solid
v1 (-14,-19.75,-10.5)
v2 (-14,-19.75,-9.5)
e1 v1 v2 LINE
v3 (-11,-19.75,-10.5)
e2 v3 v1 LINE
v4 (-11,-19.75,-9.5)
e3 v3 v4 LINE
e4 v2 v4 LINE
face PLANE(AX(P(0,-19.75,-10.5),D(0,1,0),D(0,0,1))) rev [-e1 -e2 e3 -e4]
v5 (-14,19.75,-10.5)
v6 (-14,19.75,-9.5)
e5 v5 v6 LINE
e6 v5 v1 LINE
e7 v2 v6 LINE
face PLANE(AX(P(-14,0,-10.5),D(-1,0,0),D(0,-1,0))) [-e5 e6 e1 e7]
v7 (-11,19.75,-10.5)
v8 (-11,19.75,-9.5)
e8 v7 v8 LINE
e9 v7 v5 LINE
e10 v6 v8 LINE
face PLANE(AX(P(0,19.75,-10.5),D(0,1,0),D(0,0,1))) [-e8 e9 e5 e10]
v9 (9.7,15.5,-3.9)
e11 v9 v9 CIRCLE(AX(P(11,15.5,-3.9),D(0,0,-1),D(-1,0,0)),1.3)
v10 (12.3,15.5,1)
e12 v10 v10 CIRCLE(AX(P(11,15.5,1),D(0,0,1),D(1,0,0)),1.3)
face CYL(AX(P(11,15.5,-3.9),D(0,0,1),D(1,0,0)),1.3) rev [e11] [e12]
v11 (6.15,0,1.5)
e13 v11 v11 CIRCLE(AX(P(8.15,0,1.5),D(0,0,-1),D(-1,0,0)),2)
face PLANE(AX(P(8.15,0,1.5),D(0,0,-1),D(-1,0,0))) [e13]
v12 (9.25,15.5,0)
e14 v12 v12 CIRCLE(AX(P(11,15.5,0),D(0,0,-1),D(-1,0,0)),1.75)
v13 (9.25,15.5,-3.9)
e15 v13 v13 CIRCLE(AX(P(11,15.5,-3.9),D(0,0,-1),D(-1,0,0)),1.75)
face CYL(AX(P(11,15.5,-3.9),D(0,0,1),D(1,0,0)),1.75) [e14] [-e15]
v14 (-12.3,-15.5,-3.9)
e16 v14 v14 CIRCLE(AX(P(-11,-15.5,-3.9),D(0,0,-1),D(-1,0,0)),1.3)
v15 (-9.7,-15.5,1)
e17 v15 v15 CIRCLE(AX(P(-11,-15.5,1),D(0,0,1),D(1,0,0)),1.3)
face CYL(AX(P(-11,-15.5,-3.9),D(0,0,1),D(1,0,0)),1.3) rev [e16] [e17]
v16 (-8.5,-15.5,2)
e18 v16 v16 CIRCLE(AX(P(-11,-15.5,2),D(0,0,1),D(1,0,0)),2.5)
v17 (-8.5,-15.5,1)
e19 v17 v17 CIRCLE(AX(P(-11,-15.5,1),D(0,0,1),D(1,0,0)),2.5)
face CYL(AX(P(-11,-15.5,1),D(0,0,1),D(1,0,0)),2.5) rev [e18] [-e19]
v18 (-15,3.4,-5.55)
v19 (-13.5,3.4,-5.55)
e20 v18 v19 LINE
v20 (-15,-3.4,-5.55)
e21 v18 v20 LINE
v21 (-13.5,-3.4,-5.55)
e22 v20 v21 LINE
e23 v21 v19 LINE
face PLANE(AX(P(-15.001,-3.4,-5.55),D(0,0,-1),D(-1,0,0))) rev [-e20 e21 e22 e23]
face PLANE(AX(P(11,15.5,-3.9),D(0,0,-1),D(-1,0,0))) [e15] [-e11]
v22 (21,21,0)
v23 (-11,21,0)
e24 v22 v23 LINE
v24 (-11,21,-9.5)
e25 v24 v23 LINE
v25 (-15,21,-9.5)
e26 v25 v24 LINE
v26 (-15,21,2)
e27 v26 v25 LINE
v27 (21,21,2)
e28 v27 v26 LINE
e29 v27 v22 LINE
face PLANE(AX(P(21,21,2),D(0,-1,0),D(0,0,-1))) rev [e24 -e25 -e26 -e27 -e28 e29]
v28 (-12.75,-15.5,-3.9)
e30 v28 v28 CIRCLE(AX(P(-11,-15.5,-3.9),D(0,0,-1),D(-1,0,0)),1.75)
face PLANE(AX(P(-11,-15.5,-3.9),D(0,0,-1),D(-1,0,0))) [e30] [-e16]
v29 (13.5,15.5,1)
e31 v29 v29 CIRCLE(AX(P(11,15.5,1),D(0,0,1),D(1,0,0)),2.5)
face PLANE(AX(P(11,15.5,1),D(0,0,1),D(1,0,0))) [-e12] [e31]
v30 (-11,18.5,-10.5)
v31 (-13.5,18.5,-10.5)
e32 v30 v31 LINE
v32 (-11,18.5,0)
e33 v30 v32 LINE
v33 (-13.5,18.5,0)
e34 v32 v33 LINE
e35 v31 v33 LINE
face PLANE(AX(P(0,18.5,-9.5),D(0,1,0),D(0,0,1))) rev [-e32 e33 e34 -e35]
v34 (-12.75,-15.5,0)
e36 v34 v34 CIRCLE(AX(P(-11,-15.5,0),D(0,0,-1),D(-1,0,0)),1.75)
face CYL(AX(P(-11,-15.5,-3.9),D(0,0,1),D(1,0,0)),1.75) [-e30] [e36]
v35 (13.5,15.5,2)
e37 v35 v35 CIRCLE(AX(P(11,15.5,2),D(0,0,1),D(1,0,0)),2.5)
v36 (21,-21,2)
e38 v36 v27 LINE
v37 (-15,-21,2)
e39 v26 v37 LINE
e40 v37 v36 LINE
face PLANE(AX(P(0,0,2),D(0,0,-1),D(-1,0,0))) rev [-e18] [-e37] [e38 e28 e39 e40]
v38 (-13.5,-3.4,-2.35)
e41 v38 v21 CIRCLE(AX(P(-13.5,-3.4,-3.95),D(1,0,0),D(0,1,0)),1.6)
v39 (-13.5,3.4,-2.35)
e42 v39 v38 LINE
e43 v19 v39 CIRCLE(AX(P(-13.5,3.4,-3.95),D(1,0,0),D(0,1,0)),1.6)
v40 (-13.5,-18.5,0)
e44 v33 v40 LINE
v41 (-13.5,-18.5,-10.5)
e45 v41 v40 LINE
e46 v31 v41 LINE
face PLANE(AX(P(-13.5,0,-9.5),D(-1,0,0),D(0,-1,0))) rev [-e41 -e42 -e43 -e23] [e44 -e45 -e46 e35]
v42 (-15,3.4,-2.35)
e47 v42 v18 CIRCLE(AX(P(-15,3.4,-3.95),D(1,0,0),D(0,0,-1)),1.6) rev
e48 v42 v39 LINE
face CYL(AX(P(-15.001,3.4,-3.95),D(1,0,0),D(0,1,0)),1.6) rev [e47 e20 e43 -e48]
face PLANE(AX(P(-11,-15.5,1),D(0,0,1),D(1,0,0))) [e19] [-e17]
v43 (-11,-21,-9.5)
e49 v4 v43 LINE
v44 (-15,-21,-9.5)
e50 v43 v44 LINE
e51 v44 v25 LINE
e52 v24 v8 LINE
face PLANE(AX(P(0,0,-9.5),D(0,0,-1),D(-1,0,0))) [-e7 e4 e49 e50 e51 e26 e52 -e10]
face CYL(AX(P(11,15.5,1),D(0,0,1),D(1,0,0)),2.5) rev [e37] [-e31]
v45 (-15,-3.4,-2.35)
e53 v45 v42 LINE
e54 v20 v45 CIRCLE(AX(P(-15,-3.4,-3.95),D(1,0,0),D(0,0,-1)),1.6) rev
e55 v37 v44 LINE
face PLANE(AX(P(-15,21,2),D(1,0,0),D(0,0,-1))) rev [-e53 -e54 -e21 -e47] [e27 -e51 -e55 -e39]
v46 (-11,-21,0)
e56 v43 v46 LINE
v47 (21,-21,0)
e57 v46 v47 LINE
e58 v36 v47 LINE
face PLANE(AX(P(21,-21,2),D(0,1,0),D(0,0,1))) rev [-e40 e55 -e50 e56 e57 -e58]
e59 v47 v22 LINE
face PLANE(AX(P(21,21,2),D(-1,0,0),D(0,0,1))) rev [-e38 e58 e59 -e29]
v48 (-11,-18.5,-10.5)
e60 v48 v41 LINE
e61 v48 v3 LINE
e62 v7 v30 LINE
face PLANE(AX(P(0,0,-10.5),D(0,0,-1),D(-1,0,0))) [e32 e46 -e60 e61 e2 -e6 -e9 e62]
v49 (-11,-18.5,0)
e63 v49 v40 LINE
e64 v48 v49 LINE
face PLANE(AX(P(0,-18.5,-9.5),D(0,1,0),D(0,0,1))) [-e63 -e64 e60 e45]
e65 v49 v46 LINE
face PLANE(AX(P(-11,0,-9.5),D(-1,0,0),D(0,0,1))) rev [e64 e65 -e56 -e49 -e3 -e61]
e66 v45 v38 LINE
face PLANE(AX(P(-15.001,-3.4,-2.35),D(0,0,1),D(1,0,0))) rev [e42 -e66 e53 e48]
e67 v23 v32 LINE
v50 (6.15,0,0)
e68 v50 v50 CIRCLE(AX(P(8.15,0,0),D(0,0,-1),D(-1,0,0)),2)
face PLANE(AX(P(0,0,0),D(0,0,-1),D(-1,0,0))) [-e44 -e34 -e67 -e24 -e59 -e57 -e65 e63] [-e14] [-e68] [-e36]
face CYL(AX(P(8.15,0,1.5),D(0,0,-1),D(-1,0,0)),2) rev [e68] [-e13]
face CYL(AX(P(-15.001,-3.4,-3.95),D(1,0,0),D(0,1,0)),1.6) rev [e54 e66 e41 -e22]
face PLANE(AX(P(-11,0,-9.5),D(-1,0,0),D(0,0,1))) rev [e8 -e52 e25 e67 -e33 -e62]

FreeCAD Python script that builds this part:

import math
import FreeCAD as App
import Part
import Sketcher

V = App.Vector
Q = App.Units.Quantity


def add_polygon(sketch, points):
    """Adds a closed chain of lines whose ends are joined by coincident constraints."""
    first, n = sketch.GeometryCount, len(points)
    for a, b in zip(points, points[1:] + points[:1]):
        sketch.addGeometry(Part.LineSegment(App.Vector(*a, 0), App.Vector(*b, 0)), False)
    for i in range(n):
        sketch.addConstraint(Sketcher.Constraint("Coincident", first + i, 2, first + (i + 1) % n, 1))

doc = App.newDocument("Part")
params = doc.addObject("Spreadsheet::Sheet", "Params")
for row, (alias, value) in enumerate([
    ("sketch1_width", "36 mm"),
    ("sketch1_height", "42 mm"),
    ("pad1_length", "2 mm"),
    ("sketch2_width", "4 mm"),
    ("sketch2_height", "42 mm"),
    ("sketch2_height2", "37 mm"),
    ("pad2_length", "9.5 mm"),
    ("sketch3_width", "3 mm"),
    ("sketch3_height", "37 mm"),
    ("sketch3_width2", "2.5 mm"),
    ("sketch3_height2", "39.5 mm"),
    ("pad3_length", "10.5 mm"),
    ("sketch4_radius", "1.6 mm"),
    ("sketch4_width", "6.8 mm"),
    ("sketch5_diameter", "3.5 mm"),
    ("sketch5_diameter2", "2.6 mm"),
    ("pad4_length", "3.9 mm"),
    ("sketch6_diameter", "2.6 mm"),
    ("sketch7_diameter", "2.6 mm"),
    ("sketch8_diameter", "5 mm"),
    ("pocket4_length", "1 mm"),
    ("sketch9_diameter", "4 mm"),
    ("pocket5_length", "1.5 mm"),
], start=1):
    params.set(f"A{row}", alias)
    params.set(f"B{row}", "=" + value)
    params.setAlias(f"B{row}", alias)

body = doc.addObject("PartDesign::Body", "Body")

# Sketch on XY plane
sketch1 = body.newObject("Sketcher::SketchObject", "Sketch")
sketch1.AttachmentSupport = (doc.getObject("XY_Plane"), [""])
sketch1.MapMode = "FlatFace"
add_polygon(sketch1, [(-15, 21), (-15, -21), (21, -21), (21, 21)])  # lines 0-3
sketch1.addConstraint(Sketcher.Constraint("Vertical", 0))
sketch1.addConstraint(Sketcher.Constraint("Horizontal", 1))
sketch1.addConstraint(Sketcher.Constraint("Vertical", 2))
sketch1.addConstraint(Sketcher.Constraint("Horizontal", 3))
sketch1.addConstraint(Sketcher.Constraint("DistanceX", 1, 1, 1, 2, Q("36 mm")))
sketch1.addConstraint(Sketcher.Constraint("DistanceY", 0, 2, 0, 1, Q("42 mm")))
sketch1.addConstraint(Sketcher.Constraint("DistanceX", 0, 2, -1, 1, Q("15 mm")))
sketch1.addConstraint(Sketcher.Constraint("DistanceY", 0, 2, -1, 1, Q("21 mm")))
sketch1.setExpression("Constraints[8]", "Params.sketch1_width")
sketch1.setExpression("Constraints[9]", "Params.sketch1_height")
pad1 = body.newObject("PartDesign::Pad", "Pad")
pad1.Profile = sketch1
pad1.setExpression("Length", "Params.pad1_length")

# Sketch on XY plane
sketch2 = body.newObject("Sketcher::SketchObject", "Sketch001")
sketch2.AttachmentSupport = (doc.getObject("XY_Plane"), [""])
sketch2.MapMode = "FlatFace"
add_polygon(sketch2, [(-15, -21), (-15, 21), (-11, 21), (-11, 18.5), (-13.5, 18.5), (-13.5, -18.5), (-11, -18.5), (-11, -21)])  # lines 0-7
sketch2.addConstraint(Sketcher.Constraint("Vertical", 0))
sketch2.addConstraint(Sketcher.Constraint("Horizontal", 1))
sketch2.addConstraint(Sketcher.Constraint("Vertical", 2))
sketch2.addConstraint(Sketcher.Constraint("Horizontal", 3))
sketch2.addConstraint(Sketcher.Constraint("Vertical", 4))
sketch2.addConstraint(Sketcher.Constraint("Horizontal", 5))
sketch2.addConstraint(Sketcher.Constraint("Vertical", 6))
sketch2.addConstraint(Sketcher.Constraint("Horizontal", 7))
sketch2.addConstraint(Sketcher.Constraint("Symmetric", 2, 2, 5, 2, -1))
sketch2.addConstraint(Sketcher.Constraint("Equal", 5, 2))
sketch2.addConstraint(Sketcher.Constraint("Equal", 2, 6))
sketch2.addConstraint(Sketcher.Constraint("DistanceX", 1, 1, 1, 2, Q("4 mm")))
sketch2.addConstraint(Sketcher.Constraint("DistanceY", 0, 1, 0, 2, Q("42 mm")))
sketch2.addConstraint(Sketcher.Constraint("DistanceY", 4, 2, 4, 1, Q("37 mm")))
sketch2.addConstraint(Sketcher.Constraint("DistanceX", 0, 2, -1, 1, Q("15 mm")))
sketch2.setExpression("Constraints[19]", "Params.sketch2_width")
sketch2.setExpression("Constraints[20]", "Params.sketch2_height")
sketch2.setExpression("Constraints[21]", "Params.sketch2_height2")
pad2 = body.newObject("PartDesign::Pad", "Pad001")
pad2.Profile = sketch2
pad2.setExpression("Length", "Params.pad2_length")
pad2.Reversed = True

# Sketch on XY plane
sketch3 = body.newObject("Sketcher::SketchObject", "Sketch002")
sketch3.AttachmentSupport = (doc.getObject("XY_Plane"), [""])
sketch3.MapMode = "FlatFace"
add_polygon(sketch3, [(-14, 19.8), (-11, 19.8), (-11, 18.5), (-13.5, 18.5), (-13.5, -18.5), (-11, -18.5), (-11, -19.8), (-14, -19.8)])  # lines 0-7
sketch3.addConstraint(Sketcher.Constraint("Horizontal", 0))
sketch3.addConstraint(Sketcher.Constraint("Vertical", 1))
sketch3.addConstraint(Sketcher.Constraint("Horizontal", 2))
sketch3.addConstraint(Sketcher.Constraint("Vertical", 3))
sketch3.addConstraint(Sketcher.Constraint("Horizontal", 4))
sketch3.addConstraint(Sketcher.Constraint("Vertical", 5))
sketch3.addConstraint(Sketcher.Constraint("Horizontal", 6))
sketch3.addConstraint(Sketcher.Constraint("Vertical", 7))
sketch3.addConstraint(Sketcher.Constraint("Symmetric", 1, 2, 4, 2, -1))
sketch3.addConstraint(Sketcher.Constraint("Equal", 1, 5))
sketch3.addConstraint(Sketcher.Constraint("DistanceX", 0, 1, 0, 2, Q("3 mm")))
sketch3.addConstraint(Sketcher.Constraint("DistanceY", 3, 2, 3, 1, Q("37 mm")))
sketch3.addConstraint(Sketcher.Constraint("DistanceX", 2, 2, 2, 1, Q("2.5 mm")))
sketch3.addConstraint(Sketcher.Constraint("DistanceY", 7, 1, 7, 2, Q("39.5 mm")))
sketch3.addConstraint(Sketcher.Constraint("DistanceX", 0, 2, -1, 1, Q("11 mm")))
sketch3.setExpression("Constraints[18]", "Params.sketch3_width")
sketch3.setExpression("Constraints[19]", "Params.sketch3_height")
sketch3.setExpression("Constraints[20]", "Params.sketch3_width2")
sketch3.setExpression("Constraints[21]", "Params.sketch3_height2")
pad3 = body.newObject("PartDesign::Pad", "Pad002")
pad3.Profile = sketch3
pad3.setExpression("Length", "Params.pad3_length")
pad3.Reversed = True

# Sketch on YZ plane
sketch4 = body.newObject("Sketcher::SketchObject", "Sketch003")
sketch4.AttachmentSupport = (doc.getObject("YZ_Plane"), [""])
sketch4.MapMode = "FlatFace"
sketch4.AttachmentOffset = App.Placement(V(0, 0, -13.5), App.Rotation())
sketch4.addGeometry(Part.LineSegment(V(3.4, -2.4, 0), V(-3.4, -2.4, 0)), False)
sketch4.addGeometry(Part.ArcOfCircle(Part.Circle(V(-3.4, -4, 0), V(0, 0, 1), 1.6), math.radians(90), math.radians(270)), False)
sketch4.addGeometry(Part.LineSegment(V(-3.4, -5.5, 0), V(3.4, -5.5, 0)), False)
sketch4.addGeometry(Part.ArcOfCircle(Part.Circle(V(3.4, -4, 0), V(0, 0, 1), 1.6), math.radians(-90), math.radians(90)), False)
sketch4.addConstraint(Sketcher.Constraint("Tangent", 0, 2, 1, 1))
sketch4.addConstraint(Sketcher.Constraint("Tangent", 1, 2, 2, 1))
sketch4.addConstraint(Sketcher.Constraint("Tangent", 2, 2, 3, 1))
sketch4.addConstraint(Sketcher.Constraint("Tangent", 3, 2, 0, 1))
sketch4.addConstraint(Sketcher.Constraint("Horizontal", 0))
sketch4.addConstraint(Sketcher.Constraint("Horizontal", 2))
sketch4.addConstraint(Sketcher.Constraint("Radius", 1, Q("1.6 mm")))
sketch4.addConstraint(Sketcher.Constraint("DistanceX", 0, 2, 0, 1, Q("6.8 mm")))
sketch4.addConstraint(Sketcher.Constraint("DistanceX", 1, 3, -1, 1, Q("3.4 mm")))
sketch4.addConstraint(Sketcher.Constraint("DistanceY", 1, 3, -1, 1, Q("3.95 mm")))
sketch4.setExpression("Constraints[6]", "Params.sketch4_radius")
sketch4.setExpression("Constraints[7]", "Params.sketch4_width")
pocket1 = body.newObject("PartDesign::Pocket", "Pocket")
pocket1.Profile = sketch4
pocket1.Type = "UpToFirst"

# Sketch on XY plane
sketch5 = body.newObject("Sketcher::SketchObject", "Sketch004")
sketch5.AttachmentSupport = (doc.getObject("XY_Plane"), [""])
sketch5.MapMode = "FlatFace"
sketch5.addGeometry(Part.Circle(V(-11, -15.5, 0), V(0, 0, 1), 1.8), False)
sketch5.addGeometry(Part.Circle(V(-11, -15.5, 0), V(0, 0, 1), 1.3), False)
sketch5.addGeometry(Part.Circle(V(11, 15.5, 0), V(0, 0, 1), 1.8), False)
sketch5.addGeometry(Part.Circle(V(11, 15.5, 0), V(0, 0, 1), 1.3), False)
sketch5.addConstraint(Sketcher.Constraint("Coincident", 1, 3, 0, 3))
sketch5.addConstraint(Sketcher.Constraint("Coincident", 3, 3, 2, 3))
sketch5.addConstraint(Sketcher.Constraint("Equal", 0, 2))
sketch5.addConstraint(Sketcher.Constraint("Equal", 1, 3))
sketch5.addConstraint(Sketcher.Constraint("Symmetric", 0, 3, 2, 3, -1, 1))
sketch5.addConstraint(Sketcher.Constraint("Diameter", 0, Q("3.5 mm")))
sketch5.addConstraint(Sketcher.Constraint("Diameter", 1, Q("2.6 mm")))
sketch5.addConstraint(Sketcher.Constraint("DistanceX", 0, 3, -1, 1, Q("11 mm")))
sketch5.addConstraint(Sketcher.Constraint("DistanceY", 0, 3, 2, 3, Q("31 mm")))
sketch5.setExpression("Constraints[5]", "Params.sketch5_diameter")
sketch5.setExpression("Constraints[6]", "Params.sketch5_diameter2")
pad4 = body.newObject("PartDesign::Pad", "Pad003")
pad4.Profile = sketch5
pad4.setExpression("Length", "Params.pad4_length")
pad4.Reversed = True

# Sketch on XY plane
sketch6 = body.newObject("Sketcher::SketchObject", "Sketch005")
sketch6.AttachmentSupport = (doc.getObject("XY_Plane"), [""])
sketch6.MapMode = "FlatFace"
sketch6.addGeometry(Part.Circle(V(-11, -15.5, 0), V(0, 0, 1), 1.3), False)
sketch6.addConstraint(Sketcher.Constraint("Diameter", 0, Q("2.6 mm")))
sketch6.addConstraint(Sketcher.Constraint("DistanceX", 0, 3, -1, 1, Q("11 mm")))
sketch6.addConstraint(Sketcher.Constraint("DistanceY", 0, 3, -1, 1, Q("15.5 mm")))
sketch6.setExpression("Constraints[0]", "Params.sketch6_diameter")
pocket2 = body.newObject("PartDesign::Pocket", "Pocket001")
pocket2.Profile = sketch6
pocket2.Type = "UpToFirst"
pocket2.Reversed = True

# Sketch on XY plane
sketch7 = body.newObject("Sketcher::SketchObject", "Sketch006")
sketch7.AttachmentSupport = (doc.getObject("XY_Plane"), [""])
sketch7.MapMode = "FlatFace"
sketch7.addGeometry(Part.Circle(V(11, 15.5, 0), V(0, 0, 1), 1.3), False)
sketch7.addConstraint(Sketcher.Constraint("Diameter", 0, Q("2.6 mm")))
sketch7.addConstraint(Sketcher.Constraint("DistanceX", -1, 1, 0, 3, Q("11 mm")))
sketch7.addConstraint(Sketcher.Constraint("DistanceY", -1, 1, 0, 3, Q("15.5 mm")))
sketch7.setExpression("Constraints[0]", "Params.sketch7_diameter")
pocket3 = body.newObject("PartDesign::Pocket", "Pocket002")
pocket3.Profile = sketch7
pocket3.Type = "UpToFirst"
pocket3.Reversed = True

# Sketch on XY plane
sketch8 = body.newObject("Sketcher::SketchObject", "Sketch007")
sketch8.AttachmentSupport = (doc.getObject("XY_Plane"), [""])
sketch8.MapMode = "FlatFace"
sketch8.AttachmentOffset = App.Placement(V(0, 0, 2), App.Rotation())
sketch8.addGeometry(Part.Circle(V(11, 15.5, 0), V(0, 0, 1), 2.5), False)
sketch8.addGeometry(Part.Circle(V(-11, -15.5, 0), V(0, 0, 1), 2.5), False)
sketch8.addConstraint(Sketcher.Constraint("Equal", 0, 1))
sketch8.addConstraint(Sketcher.Constraint("Symmetric", 0, 3, 1, 3, -1, 1))
sketch8.addConstraint(Sketcher.Constraint("Diameter", 0, Q("5 mm")))
sketch8.addConstraint(Sketcher.Constraint("DistanceX", -1, 1, 0, 3, Q("11 mm")))
sketch8.addConstraint(Sketcher.Constraint("DistanceY", 1, 3, 0, 3, Q("31 mm")))
sketch8.setExpression("Constraints[2]", "Params.sketch8_diameter")
pocket4 = body.newObject("PartDesign::Pocket", "Pocket003")
pocket4.Profile = sketch8
pocket4.setExpression("Length", "Params.pocket4_length")

# Sketch on XY plane
sketch9 = body.newObject("Sketcher::SketchObject", "Sketch008")
sketch9.AttachmentSupport = (doc.getObject("XY_Plane"), [""])
sketch9.MapMode = "FlatFace"
sketch9.addGeometry(Part.Circle(V(8.2, 0, 0), V(0, 0, 1), 2), False)
sketch9.addConstraint(Sketcher.Constraint("PointOnObject", 0, 3, -1))
sketch9.addConstraint(Sketcher.Constraint("Diameter", 0, Q("4 mm")))
sketch9.addConstraint(Sketcher.Constraint("DistanceX", -1, 1, 0, 3, Q("8.15 mm")))
sketch9.setExpression("Constraints[1]", "Params.sketch9_diameter")
pocket5 = body.newObject("PartDesign::Pocket", "Pocket004")
pocket5.Profile = sketch9
pocket5.setExpression("Length", "Params.pocket5_length")
pocket5.Reversed = True

doc.recompute()
